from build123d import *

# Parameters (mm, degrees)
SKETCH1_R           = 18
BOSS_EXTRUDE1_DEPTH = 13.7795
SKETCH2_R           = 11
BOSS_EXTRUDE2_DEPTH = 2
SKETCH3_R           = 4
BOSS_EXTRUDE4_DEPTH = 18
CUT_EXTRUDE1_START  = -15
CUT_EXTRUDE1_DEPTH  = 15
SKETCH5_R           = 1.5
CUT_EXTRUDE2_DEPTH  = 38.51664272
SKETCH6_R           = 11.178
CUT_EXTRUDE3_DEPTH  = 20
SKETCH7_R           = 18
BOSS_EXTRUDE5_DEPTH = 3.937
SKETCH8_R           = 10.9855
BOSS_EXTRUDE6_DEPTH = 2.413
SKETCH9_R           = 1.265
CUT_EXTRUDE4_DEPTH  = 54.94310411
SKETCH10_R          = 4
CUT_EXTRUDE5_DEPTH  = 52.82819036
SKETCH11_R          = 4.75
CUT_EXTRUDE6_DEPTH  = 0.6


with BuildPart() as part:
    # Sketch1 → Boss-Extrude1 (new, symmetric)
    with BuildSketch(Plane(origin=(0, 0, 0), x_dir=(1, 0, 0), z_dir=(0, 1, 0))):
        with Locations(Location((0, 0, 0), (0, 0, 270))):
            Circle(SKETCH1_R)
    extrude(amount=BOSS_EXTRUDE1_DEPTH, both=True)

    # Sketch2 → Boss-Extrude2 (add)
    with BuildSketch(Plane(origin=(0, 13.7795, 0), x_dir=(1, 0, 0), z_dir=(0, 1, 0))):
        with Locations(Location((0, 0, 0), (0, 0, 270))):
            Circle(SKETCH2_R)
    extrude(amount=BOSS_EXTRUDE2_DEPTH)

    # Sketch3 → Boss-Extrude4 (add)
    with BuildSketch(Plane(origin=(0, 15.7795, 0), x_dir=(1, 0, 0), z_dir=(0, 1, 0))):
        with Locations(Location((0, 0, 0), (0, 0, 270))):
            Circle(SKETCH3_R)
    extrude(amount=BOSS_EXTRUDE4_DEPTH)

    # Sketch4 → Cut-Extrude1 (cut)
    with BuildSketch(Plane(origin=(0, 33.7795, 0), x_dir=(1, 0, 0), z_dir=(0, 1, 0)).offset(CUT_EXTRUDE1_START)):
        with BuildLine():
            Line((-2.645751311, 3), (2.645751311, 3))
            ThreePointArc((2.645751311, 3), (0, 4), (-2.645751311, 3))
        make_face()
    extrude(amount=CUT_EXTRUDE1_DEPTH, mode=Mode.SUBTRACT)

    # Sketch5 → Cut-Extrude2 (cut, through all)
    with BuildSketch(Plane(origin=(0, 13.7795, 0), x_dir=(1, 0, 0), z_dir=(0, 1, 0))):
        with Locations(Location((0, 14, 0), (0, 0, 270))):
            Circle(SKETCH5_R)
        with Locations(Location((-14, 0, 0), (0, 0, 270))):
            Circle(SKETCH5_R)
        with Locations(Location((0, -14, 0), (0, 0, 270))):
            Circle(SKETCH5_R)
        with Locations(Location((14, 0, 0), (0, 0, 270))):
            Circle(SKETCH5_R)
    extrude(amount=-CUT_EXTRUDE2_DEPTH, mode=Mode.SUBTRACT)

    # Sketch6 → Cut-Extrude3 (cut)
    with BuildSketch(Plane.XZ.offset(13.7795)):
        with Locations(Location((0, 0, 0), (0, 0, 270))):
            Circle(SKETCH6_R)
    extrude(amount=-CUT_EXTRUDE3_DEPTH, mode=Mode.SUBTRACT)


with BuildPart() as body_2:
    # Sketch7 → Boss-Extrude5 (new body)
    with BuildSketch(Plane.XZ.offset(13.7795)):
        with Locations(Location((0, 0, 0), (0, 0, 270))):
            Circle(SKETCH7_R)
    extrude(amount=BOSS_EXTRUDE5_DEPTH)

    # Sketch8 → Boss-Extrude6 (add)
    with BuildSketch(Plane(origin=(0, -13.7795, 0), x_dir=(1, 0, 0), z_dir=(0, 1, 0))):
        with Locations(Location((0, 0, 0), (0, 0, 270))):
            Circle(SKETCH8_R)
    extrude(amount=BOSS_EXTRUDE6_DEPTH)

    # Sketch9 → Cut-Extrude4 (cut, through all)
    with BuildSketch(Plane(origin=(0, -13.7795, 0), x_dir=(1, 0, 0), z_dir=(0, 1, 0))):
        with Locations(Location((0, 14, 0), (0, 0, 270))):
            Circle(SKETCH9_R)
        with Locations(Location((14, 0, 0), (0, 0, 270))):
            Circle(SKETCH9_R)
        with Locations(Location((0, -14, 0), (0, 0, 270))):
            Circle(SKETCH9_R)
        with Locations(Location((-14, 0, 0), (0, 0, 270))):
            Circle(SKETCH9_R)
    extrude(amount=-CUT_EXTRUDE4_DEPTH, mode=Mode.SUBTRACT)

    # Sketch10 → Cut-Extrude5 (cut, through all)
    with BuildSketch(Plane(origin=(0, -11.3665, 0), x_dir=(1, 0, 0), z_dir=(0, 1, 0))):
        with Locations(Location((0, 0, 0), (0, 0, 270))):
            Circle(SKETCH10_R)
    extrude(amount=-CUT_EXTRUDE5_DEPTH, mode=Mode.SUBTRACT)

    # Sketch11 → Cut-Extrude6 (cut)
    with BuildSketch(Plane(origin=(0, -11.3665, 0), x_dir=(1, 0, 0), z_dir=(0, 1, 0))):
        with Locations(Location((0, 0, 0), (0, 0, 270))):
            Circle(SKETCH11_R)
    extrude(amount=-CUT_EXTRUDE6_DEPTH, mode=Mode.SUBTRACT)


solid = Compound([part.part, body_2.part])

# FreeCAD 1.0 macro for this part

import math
import FreeCAD as App
import Part
import Sketcher

V = App.Vector
Q = App.Units.Quantity

doc = App.newDocument("Part")
body = doc.addObject("PartDesign::Body", "Body")

# Sketch on XZ plane
sketch1 = body.newObject("Sketcher::SketchObject", "Sketch")
sketch1.AttachmentSupport = (doc.getObject("XZ_Plane"), [""])
sketch1.MapMode = "FlatFace"
sketch1.addGeometry(Part.Circle(V(0, 0, 0), V(0, 0, 1), 18), False)
sketch1.addConstraint([
    Sketcher.Constraint("Coincident", 0, 3, -1, 1),
    Sketcher.Constraint("Diameter", 0, Q("36 mm")),
])
pad1 = body.newObject("PartDesign::Pad", "Pad")
pad1.Profile = sketch1
pad1.Length = 27.559
pad1.Midplane = True

# Sketch on XZ plane
sketch2 = body.newObject("Sketcher::SketchObject", "Sketch001")
sketch2.AttachmentSupport = (doc.getObject("XZ_Plane"), [""])
sketch2.MapMode = "FlatFace"
sketch2.AttachmentOffset = App.Placement(V(0, 0, -13.7795), App.Rotation())
sketch2.addGeometry(Part.Circle(V(0, 0, 0), V(0, 0, 1), 11), False)
sketch2.addConstraint([
    Sketcher.Constraint("Coincident", 0, 3, -1, 1),
    Sketcher.Constraint("Diameter", 0, Q("22 mm")),
])
pad2 = body.newObject("PartDesign::Pad", "Pad001")
pad2.Profile = sketch2
pad2.Length = 2
pad2.Reversed = True

# Sketch on XZ plane
sketch3 = body.newObject("Sketcher::SketchObject", "Sketch002")
sketch3.AttachmentSupport = (doc.getObject("XZ_Plane"), [""])
sketch3.MapMode = "FlatFace"
sketch3.AttachmentOffset = App.Placement(V(0, 0, -15.7795), App.Rotation())
sketch3.addGeometry(Part.Circle(V(0, 0, 0), V(0, 0, 1), 4), False)
sketch3.addConstraint([
    Sketcher.Constraint("Coincident", 0, 3, -1, 1),
    Sketcher.Constraint("Diameter", 0, Q("8 mm")),
])
pad3 = body.newObject("PartDesign::Pad", "Pad002")
pad3.Profile = sketch3
pad3.Length = 18
pad3.Reversed = True

# Sketch on XZ plane
sketch4 = body.newObject("Sketcher::SketchObject", "Sketch003")
sketch4.AttachmentSupport = (doc.getObject("XZ_Plane"), [""])
sketch4.MapMode = "FlatFace"
sketch4.AttachmentOffset = App.Placement(V(0, 0, -18.7795), App.Rotation())
sketch4.addGeometry([
    Part.LineSegment(V(-2.6, -3, 0), V(2.6, -3, 0)),
    Part.ArcOfCircle(Part.Circle(V(0, 0, 0), V(0, 0, 1), 4), math.radians(-131), math.radians(-49)),
], False)
sketch4.addConstraint([
    Sketcher.Constraint("Coincident", 0, 1, 1, 1),
    Sketcher.Constraint("Coincident", 1, 2, 0, 2),
    Sketcher.Constraint("Horizontal", 0),
    Sketcher.Constraint("Coincident", 1, 3, -1, 1),
    Sketcher.Constraint("Radius", 1, Q("4 mm")),
    Sketcher.Constraint("DistanceY", 0, 1, -1, 1, Q("3 mm")),
])
pocket1 = body.newObject("PartDesign::Pocket", "Pocket")
pocket1.Profile = sketch4
pocket1.Length = 15

# Sketch on XZ plane
sketch5 = body.newObject("Sketcher::SketchObject", "Sketch004")
sketch5.AttachmentSupport = (doc.getObject("XZ_Plane"), [""])
sketch5.MapMode = "FlatFace"
sketch5.AttachmentOffset = App.Placement(V(0, 0, -13.7795), App.Rotation())
sketch5.addGeometry([
    Part.Circle(V(0, -14, 0), V(0, 0, 1), 1.5),
    Part.Circle(V(-14, 0, 0), V(0, 0, 1), 1.5),
    Part.Circle(V(0, 14, 0), V(0, 0, 1), 1.5),
    Part.Circle(V(14, 0, 0), V(0, 0, 1), 1.5),
], False)
sketch5.addConstraint([
    Sketcher.Constraint("Equal", 0, 1),
    Sketcher.Constraint("Equal", 1, 2),
    Sketcher.Constraint("Equal", 2, 3),
    Sketcher.Constraint("Symmetric", 0, 3, 2, 3, -1, 1),
    Sketcher.Constraint("Symmetric", 1, 3, 3, 3, -1, 1),
    Sketcher.Constraint("PointOnObject", 0, 3, -2),
    Sketcher.Constraint("PointOnObject", 1, 3, -1),
    Sketcher.Constraint("Diameter", 0, Q("3 mm")),
    Sketcher.Constraint("DistanceY", 0, 3, -1, 1, Q("14 mm")),
    Sketcher.Constraint("DistanceX", 1, 3, -1, 1, Q("14 mm")),
])
pocket2 = body.newObject("PartDesign::Pocket", "Pocket001")
pocket2.Profile = sketch5
pocket2.Type = "ThroughAll"
pocket2.Reversed = True

# Sketch on XZ plane
sketch6 = body.newObject("Sketcher::SketchObject", "Sketch005")
sketch6.AttachmentSupport = (doc.getObject("XZ_Plane"), [""])
sketch6.MapMode = "FlatFace"
sketch6.AttachmentOffset = App.Placement(V(0, 0, 13.7795), App.Rotation())
sketch6.addGeometry(Part.Circle(V(0, 0, 0), V(0, 0, 1), 11), False)
sketch6.addConstraint([
    Sketcher.Constraint("Coincident", 0, 3, -1, 1),
    Sketcher.Constraint("Diameter", 0, Q("22.356 mm")),
])
pocket3 = body.newObject("PartDesign::Pocket", "Pocket002")
pocket3.Profile = sketch6
pocket3.Length = 20
body2 = doc.addObject("PartDesign::Body", "Body001")

# Sketch on XZ plane
sketch7 = body2.newObject("Sketcher::SketchObject", "Sketch006")
sketch7.AttachmentSupport = (doc.getObject("XZ_Plane001"), [""])
sketch7.MapMode = "FlatFace"
sketch7.AttachmentOffset = App.Placement(V(0, 0, 13.7795), App.Rotation())
sketch7.addGeometry(Part.Circle(V(0, 0, 0), V(0, 0, 1), 18), False)
sketch7.addConstraint([
    Sketcher.Constraint("Coincident", 0, 3, -1, 1),
    Sketcher.Constraint("Diameter", 0, Q("36 mm")),
])
pad4 = body2.newObject("PartDesign::Pad", "Pad003")
pad4.Profile = sketch7
pad4.Length = 3.937

# Sketch on XZ plane
sketch8 = body2.newObject("Sketcher::SketchObject", "Sketch007")
sketch8.AttachmentSupport = (doc.getObject("XZ_Plane001"), [""])
sketch8.MapMode = "FlatFace"
sketch8.AttachmentOffset = App.Placement(V(0, 0, 13.7795), App.Rotation())
sketch8.addGeometry(Part.Circle(V(0, 0, 0), V(0, 0, 1), 11), False)
sketch8.addConstraint([
    Sketcher.Constraint("Coincident", 0, 3, -1, 1),
    Sketcher.Constraint("Diameter", 0, Q("21.971 mm")),
])
pad5 = body2.newObject("PartDesign::Pad", "Pad004")
pad5.Profile = sketch8
pad5.Length = 2.413
pad5.Reversed = True

# Sketch on XZ plane
sketch9 = body2.newObject("Sketcher::SketchObject", "Sketch008")
sketch9.AttachmentSupport = (doc.getObject("XZ_Plane001"), [""])
sketch9.MapMode = "FlatFace"
sketch9.AttachmentOffset = App.Placement(V(0, 0, 13.7795), App.Rotation())
sketch9.addGeometry([
    Part.Circle(V(0, -14, 0), V(0, 0, 1), 1.3),
    Part.Circle(V(14, 0, 0), V(0, 0, 1), 1.3),
    Part.Circle(V(0, 14, 0), V(0, 0, 1), 1.3),
    Part.Circle(V(-14, 0, 0), V(0, 0, 1), 1.3),
], False)
sketch9.addConstraint([
    Sketcher.Constraint("Equal", 0, 1),
    Sketcher.Constraint("Equal", 1, 2),
    Sketcher.Constraint("Equal", 2, 3),
    Sketcher.Constraint("Symmetric", 0, 3, 2, 3, -1, 1),
    Sketcher.Constraint("Symmetric", 1, 3, 3, 3, -1, 1),
    Sketcher.Constraint("PointOnObject", 0, 3, -2),
    Sketcher.Constraint("PointOnObject", 1, 3, -1),
    Sketcher.Constraint("Diameter", 0, Q("2.53 mm")),
    Sketcher.Constraint("DistanceY", 0, 3, -1, 1, Q("14 mm")),
    Sketcher.Constraint("DistanceX", -1, 1, 1, 3, Q("14 mm")),
])
pocket4 = body2.newObject("PartDesign::Pocket", "Pocket003")
pocket4.Profile = sketch9
pocket4.Type = "ThroughAll"
pocket4.Reversed = True

# Sketch on XZ plane
sketch10 = body2.newObject("Sketcher::SketchObject", "Sketch009")
sketch10.AttachmentSupport = (doc.getObject("XZ_Plane001"), [""])
sketch10.MapMode = "FlatFace"
sketch10.AttachmentOffset = App.Placement(V(0, 0, 11.3665), App.Rotation())
sketch10.addGeometry(Part.Circle(V(0, 0, 0), V(0, 0, 1), 4), False)
sketch10.addConstraint([
    Sketcher.Constraint("Coincident", 0, 3, -1, 1),
    Sketcher.Constraint("Diameter", 0, Q("8 mm")),
])
pocket5 = body2.newObject("PartDesign::Pocket", "Pocket004")
pocket5.Profile = sketch10
pocket5.Type = "ThroughAll"
pocket5.Reversed = True

# Sketch on XZ plane
sketch11 = body2.newObject("Sketcher::SketchObject", "Sketch010")
sketch11.AttachmentSupport = (doc.getObject("XZ_Plane001"), [""])
sketch11.MapMode = "FlatFace"
sketch11.AttachmentOffset = App.Placement(V(0, 0, 11.3665), App.Rotation())
sketch11.addGeometry(Part.Circle(V(0, 0, 0), V(0, 0, 1), 4.8), False)
sketch11.addConstraint([
    Sketcher.Constraint("Coincident", 0, 3, -1, 1),
    Sketcher.Constraint("Diameter", 0, Q("9.5 mm")),
])
pocket6 = body2.newObject("PartDesign::Pocket", "Pocket005")
pocket6.Profile = sketch11
pocket6.Length = 0.6
pocket6.Reversed = True

doc.recompute()
